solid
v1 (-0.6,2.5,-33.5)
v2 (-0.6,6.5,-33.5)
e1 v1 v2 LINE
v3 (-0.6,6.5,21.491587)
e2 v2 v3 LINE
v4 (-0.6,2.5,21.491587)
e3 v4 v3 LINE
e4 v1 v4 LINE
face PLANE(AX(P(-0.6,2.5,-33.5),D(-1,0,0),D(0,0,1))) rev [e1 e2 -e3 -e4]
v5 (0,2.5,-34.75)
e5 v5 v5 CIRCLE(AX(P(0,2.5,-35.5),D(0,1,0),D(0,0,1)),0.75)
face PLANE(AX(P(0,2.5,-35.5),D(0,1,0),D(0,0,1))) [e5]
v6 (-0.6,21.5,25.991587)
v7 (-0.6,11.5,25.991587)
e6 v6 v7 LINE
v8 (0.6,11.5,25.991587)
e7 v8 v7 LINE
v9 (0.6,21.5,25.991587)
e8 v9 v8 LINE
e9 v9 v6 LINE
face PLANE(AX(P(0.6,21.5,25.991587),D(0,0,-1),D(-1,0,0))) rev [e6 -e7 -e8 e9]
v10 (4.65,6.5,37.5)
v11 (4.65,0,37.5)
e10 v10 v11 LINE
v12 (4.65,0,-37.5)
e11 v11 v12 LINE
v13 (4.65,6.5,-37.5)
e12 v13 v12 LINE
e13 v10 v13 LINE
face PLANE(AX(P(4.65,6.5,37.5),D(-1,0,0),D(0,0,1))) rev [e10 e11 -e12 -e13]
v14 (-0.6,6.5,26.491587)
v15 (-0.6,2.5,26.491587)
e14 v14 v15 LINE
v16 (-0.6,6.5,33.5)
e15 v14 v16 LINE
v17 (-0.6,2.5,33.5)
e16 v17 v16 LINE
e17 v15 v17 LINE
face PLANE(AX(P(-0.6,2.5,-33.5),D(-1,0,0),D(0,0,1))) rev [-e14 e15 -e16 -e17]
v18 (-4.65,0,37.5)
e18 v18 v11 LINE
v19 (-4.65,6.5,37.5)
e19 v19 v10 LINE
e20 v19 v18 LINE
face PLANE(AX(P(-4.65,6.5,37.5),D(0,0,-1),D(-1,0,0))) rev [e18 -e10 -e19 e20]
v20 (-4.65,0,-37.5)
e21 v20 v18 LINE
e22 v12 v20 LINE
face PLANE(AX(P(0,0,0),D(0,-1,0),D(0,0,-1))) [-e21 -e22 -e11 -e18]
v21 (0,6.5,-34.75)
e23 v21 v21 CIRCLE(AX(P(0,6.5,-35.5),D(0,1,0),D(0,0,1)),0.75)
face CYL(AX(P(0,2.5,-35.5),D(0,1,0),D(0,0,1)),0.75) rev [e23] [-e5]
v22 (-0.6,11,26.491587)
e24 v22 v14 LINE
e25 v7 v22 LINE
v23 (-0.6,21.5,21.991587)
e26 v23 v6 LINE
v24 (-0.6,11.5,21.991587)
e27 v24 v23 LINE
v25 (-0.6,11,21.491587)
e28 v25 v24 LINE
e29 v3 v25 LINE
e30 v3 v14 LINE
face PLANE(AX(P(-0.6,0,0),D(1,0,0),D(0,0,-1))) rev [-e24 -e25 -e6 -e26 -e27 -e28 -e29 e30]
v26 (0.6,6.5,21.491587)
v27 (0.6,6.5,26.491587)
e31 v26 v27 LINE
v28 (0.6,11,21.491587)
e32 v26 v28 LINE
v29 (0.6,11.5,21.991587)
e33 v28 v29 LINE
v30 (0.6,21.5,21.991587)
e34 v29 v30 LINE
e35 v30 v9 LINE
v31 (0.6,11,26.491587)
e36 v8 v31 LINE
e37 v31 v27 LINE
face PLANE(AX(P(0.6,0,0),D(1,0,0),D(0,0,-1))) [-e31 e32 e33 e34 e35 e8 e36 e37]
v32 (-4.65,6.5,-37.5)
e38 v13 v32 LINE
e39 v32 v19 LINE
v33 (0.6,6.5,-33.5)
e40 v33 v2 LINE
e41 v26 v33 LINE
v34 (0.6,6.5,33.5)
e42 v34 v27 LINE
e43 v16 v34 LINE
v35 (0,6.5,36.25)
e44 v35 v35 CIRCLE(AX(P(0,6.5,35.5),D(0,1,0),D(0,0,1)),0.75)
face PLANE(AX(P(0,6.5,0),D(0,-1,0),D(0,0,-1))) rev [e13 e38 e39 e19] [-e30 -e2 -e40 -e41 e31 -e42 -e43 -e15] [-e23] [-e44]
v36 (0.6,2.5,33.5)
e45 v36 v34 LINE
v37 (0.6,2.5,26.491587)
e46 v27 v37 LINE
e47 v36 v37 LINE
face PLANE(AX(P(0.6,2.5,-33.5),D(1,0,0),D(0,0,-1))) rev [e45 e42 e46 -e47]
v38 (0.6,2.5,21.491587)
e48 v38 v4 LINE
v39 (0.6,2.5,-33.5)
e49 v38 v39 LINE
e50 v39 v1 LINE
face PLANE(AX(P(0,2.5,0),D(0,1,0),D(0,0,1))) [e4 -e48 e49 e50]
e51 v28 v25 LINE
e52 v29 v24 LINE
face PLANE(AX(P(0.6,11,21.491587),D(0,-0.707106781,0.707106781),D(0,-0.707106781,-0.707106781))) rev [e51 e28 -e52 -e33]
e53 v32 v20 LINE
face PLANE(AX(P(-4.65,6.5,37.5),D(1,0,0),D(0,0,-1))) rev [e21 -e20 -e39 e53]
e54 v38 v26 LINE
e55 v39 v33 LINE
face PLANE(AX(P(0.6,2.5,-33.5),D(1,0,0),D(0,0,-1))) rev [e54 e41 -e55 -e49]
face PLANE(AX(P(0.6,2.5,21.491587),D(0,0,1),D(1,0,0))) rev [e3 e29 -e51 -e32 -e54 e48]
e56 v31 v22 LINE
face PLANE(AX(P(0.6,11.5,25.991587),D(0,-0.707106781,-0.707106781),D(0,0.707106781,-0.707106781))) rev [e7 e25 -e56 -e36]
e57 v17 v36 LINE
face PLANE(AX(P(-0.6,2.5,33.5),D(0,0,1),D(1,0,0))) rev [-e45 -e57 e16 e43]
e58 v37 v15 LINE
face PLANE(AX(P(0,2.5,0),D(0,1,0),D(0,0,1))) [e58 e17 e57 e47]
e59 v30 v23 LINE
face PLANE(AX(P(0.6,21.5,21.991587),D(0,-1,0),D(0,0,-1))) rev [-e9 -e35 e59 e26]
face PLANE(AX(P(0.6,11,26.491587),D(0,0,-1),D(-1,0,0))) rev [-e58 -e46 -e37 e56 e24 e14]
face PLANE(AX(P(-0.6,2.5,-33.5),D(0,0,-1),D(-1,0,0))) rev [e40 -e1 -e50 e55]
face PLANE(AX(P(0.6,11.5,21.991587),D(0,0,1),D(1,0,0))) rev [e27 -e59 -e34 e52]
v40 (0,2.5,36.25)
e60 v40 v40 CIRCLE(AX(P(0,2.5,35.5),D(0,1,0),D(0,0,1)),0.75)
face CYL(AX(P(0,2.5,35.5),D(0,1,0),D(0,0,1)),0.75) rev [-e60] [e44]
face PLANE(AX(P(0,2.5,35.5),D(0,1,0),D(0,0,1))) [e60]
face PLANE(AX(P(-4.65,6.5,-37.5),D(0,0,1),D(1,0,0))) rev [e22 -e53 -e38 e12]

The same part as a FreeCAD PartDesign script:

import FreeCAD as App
import Part
import Sketcher


def add_polygon(sketch, points):
    """Adds a closed chain of lines whose ends are joined by coincident constraints."""
    first, n = sketch.GeometryCount, len(points)
    for a, b in zip(points, points[1:] + points[:1]):
        sketch.addGeometry(Part.LineSegment(App.Vector(*a, 0), App.Vector(*b, 0)), False)
    for i in range(n):
        sketch.addConstraint(Sketcher.Constraint("Coincident", first + i, 2, first + (i + 1) % n, 1))

doc = App.newDocument("Part")
params = doc.addObject("Spreadsheet::Sheet", "Params")
for row, (alias, value) in enumerate([
    ("sketch1_height", "75 mm"),
    ("sketch1_width", "9.3 mm"),
    ("pad1_length", "6.5 mm"),
    ("sketch2_diameter", "1.5 mm"),
    ("pocket1_length", "4 mm"),
    ("sketch3_height", "67 mm"),
    ("sketch3_width", "1.2 mm"),
    ("pocket2_length", "4 mm"),
    ("sketch4_width", "10 mm"),
    ("sketch4_height", "5 mm"),
    ("sketch4_height2", "4 mm"),
    ("sketch4_width2", "8.5 mm"),
    ("pad2_length", "1.2 mm"),
], start=1):
    params.set(f"A{row}", alias)
    params.set(f"B{row}", "=" + value)
    params.setAlias(f"B{row}", alias)

body = doc.addObject("PartDesign::Body", "Body")

sketch1 = doc.addObject("Sketcher::SketchObject", "Sketch")
body.addObject(sketch1)
sketch1.AttachmentSupport = (doc.XZ_Plane, [""])
sketch1.MapMode = "FlatFace"
add_polygon(sketch1, [(-4.65, -37.5), (-4.65, 37.5), (4.65, 37.5), (4.65, -37.5)])
sketch1.addConstraint([
    Sketcher.Constraint("Vertical", 0),
    Sketcher.Constraint("Horizontal", 1),
    Sketcher.Constraint("Vertical", 2),
    Sketcher.Constraint("Horizontal", 3),
    Sketcher.Constraint("Symmetric", 0, 2, 2, 2, -1, 1),
    Sketcher.Constraint("DistanceY", 0, 1, 0, 2, 75.0),
    Sketcher.Constraint("DistanceX", 1, 1, 1, 2, 9.3),
])
sketch1.setExpression("Constraints[9]", "Params.sketch1_height")
sketch1.setExpression("Constraints[10]", "Params.sketch1_width")
pad1 = doc.addObject("PartDesign::Pad", "Pad")
body.addObject(pad1)
pad1.Profile = sketch1
pad1.setExpression("Length", "Params.pad1_length")
pad1.Reversed = True

sketch2 = doc.addObject("Sketcher::SketchObject", "Sketch001")
body.addObject(sketch2)
sketch2.AttachmentSupport = (doc.XZ_Plane, [""])
sketch2.MapMode = "FlatFace"
sketch2.AttachmentOffset = App.Placement(App.Vector(0, 0, -6.5), App.Rotation())
sketch2.addGeometry([
    Part.Circle(App.Vector(0, -35.5, 0), App.Vector(0, 0, 1), 0.75),
    Part.Circle(App.Vector(0, 35.5, 0), App.Vector(0, 0, 1), 0.75),
], False)
sketch2.addConstraint([
    Sketcher.Constraint("Equal", 0, 1),
    Sketcher.Constraint("Symmetric", 0, 3, 1, 3, -1, 1),
    Sketcher.Constraint("PointOnObject", 0, 3, -2),
    Sketcher.Constraint("Diameter", 0, 1.5),
    Sketcher.Constraint("DistanceY", 0, 3, 1, 3, 71.0),
])
sketch2.setExpression("Constraints[3]", "Params.sketch2_diameter")
pocket1 = doc.addObject("PartDesign::Pocket", "Pocket")
body.addObject(pocket1)
pocket1.Profile = sketch2
pocket1.setExpression("Length", "Params.pocket1_length")
pocket1.Reversed = True

sketch3 = doc.addObject("Sketcher::SketchObject", "Sketch002")
body.addObject(sketch3)
sketch3.AttachmentSupport = (doc.XZ_Plane, [""])
sketch3.MapMode = "FlatFace"
sketch3.AttachmentOffset = App.Placement(App.Vector(0, 0, -6.5), App.Rotation())
add_polygon(sketch3, [(-0.6, -33.5), (-0.6, 33.5), (0.6, 33.5), (0.6, -33.5)])
sketch3.addConstraint([
    Sketcher.Constraint("Vertical", 0),
    Sketcher.Constraint("Horizontal", 1),
    Sketcher.Constraint("Vertical", 2),
    Sketcher.Constraint("Horizontal", 3),
    Sketcher.Constraint("Symmetric", 0, 2, 2, 2, -1, 1),
    Sketcher.Constraint("DistanceY", 0, 1, 0, 2, 67.0),
    Sketcher.Constraint("DistanceX", 1, 1, 1, 2, 1.2),
])
sketch3.setExpression("Constraints[9]", "Params.sketch3_height")
sketch3.setExpression("Constraints[10]", "Params.sketch3_width")
pocket2 = doc.addObject("PartDesign::Pocket", "Pocket001")
body.addObject(pocket2)
pocket2.Profile = sketch3
pocket2.setExpression("Length", "Params.pocket2_length")
pocket2.Reversed = True

sketch4 = doc.addObject("Sketcher::SketchObject", "Sketch003")
body.addObject(sketch4)
sketch4.AttachmentSupport = (doc.YZ_Plane, [""])
sketch4.MapMode = "FlatFace"
add_polygon(sketch4, [(2.5, 26.491587), (2.5, 21.491587), (11, 21.491587), (11.5, 21.991587), (21.5, 21.991587), (21.5, 25.991587), (11.5, 25.991587), (11, 26.491587)])
sketch4.addConstraint([
    Sketcher.Constraint("Vertical", 0),
    Sketcher.Constraint("Horizontal", 1),
    Sketcher.Constraint("Horizontal", 3),
    Sketcher.Constraint("Vertical", 4),
    Sketcher.Constraint("Horizontal", 5),
    Sketcher.Constraint("Horizontal", 7),
    Sketcher.Constraint("Perpendicular", 2, 6),
    Sketcher.Constraint("Vertical", 2, 2, 5, 2),
    Sketcher.Constraint("Vertical", 1, 2, 6, 2),
    Sketcher.Constraint("Equal", 2, 6),
    Sketcher.Constraint("DistanceX", 3, 1, 3, 2, 10.0),
    Sketcher.Constraint("DistanceY", 0, 2, 0, 1, 5.0),
    Sketcher.Constraint("DistanceY", 4, 1, 4, 2, 4.0),
    Sketcher.Constraint("DistanceX", 1, 1, 1, 2, 8.5),
    Sketcher.Constraint("DistanceX", -1, 1, 1, 2, 11.0),
    Sketcher.Constraint("DistanceY", -1, 1, 0, 2, 21.491587),
])
sketch4.setExpression("Constraints[18]", "Params.sketch4_width")
sketch4.setExpression("Constraints[19]", "Params.sketch4_height")
sketch4.setExpression("Constraints[20]", "Params.sketch4_height2")
sketch4.setExpression("Constraints[21]", "Params.sketch4_width2")
pad2 = doc.addObject("PartDesign::Pad", "Pad001")
body.addObject(pad2)
pad2.Profile = sketch4
pad2.setExpression("Length", "Params.pad2_length")
pad2.Midplane = True

doc.recompute()
